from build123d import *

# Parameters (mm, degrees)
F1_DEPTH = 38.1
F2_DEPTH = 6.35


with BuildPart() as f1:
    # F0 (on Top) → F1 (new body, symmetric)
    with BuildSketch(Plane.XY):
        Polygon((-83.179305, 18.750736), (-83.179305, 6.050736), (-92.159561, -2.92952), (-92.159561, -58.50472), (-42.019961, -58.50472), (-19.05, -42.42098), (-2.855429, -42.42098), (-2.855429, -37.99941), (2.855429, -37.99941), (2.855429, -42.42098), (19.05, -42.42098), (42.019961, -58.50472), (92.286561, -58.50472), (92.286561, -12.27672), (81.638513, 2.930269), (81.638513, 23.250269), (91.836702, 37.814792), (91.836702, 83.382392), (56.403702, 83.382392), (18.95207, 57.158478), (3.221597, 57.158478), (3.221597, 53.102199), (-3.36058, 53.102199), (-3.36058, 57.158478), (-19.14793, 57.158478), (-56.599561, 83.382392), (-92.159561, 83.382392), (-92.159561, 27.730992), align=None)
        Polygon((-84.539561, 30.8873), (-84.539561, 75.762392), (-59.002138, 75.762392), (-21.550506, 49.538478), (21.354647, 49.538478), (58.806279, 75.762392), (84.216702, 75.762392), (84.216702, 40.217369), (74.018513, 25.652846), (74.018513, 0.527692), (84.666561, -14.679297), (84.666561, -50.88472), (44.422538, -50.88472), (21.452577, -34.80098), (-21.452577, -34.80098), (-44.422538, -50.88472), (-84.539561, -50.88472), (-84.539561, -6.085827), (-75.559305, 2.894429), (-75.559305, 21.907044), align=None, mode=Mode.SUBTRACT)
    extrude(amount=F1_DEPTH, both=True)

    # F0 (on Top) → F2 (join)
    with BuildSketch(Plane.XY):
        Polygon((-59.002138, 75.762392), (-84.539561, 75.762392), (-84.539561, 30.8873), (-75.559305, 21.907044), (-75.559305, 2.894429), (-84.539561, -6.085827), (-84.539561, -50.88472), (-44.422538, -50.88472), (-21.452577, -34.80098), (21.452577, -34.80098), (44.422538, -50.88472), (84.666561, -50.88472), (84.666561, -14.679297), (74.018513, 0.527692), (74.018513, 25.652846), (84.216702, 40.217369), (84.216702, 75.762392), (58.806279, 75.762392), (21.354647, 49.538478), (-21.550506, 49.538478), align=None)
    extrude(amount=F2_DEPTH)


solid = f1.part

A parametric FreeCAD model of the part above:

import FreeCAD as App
import Part
import Sketcher
Q = App.Units.Quantity


def add_polygon(sketch, points):
    """Adds a closed chain of lines whose ends are joined by coincident constraints."""
    first, n = sketch.GeometryCount, len(points)
    for a, b in zip(points, points[1:] + points[:1]):
        sketch.addGeometry(Part.LineSegment(App.Vector(*a, 0), App.Vector(*b, 0)), False)
    for i in range(n):
        sketch.addConstraint(Sketcher.Constraint("Coincident", first + i, 2, first + (i + 1) % n, 1))

doc = App.newDocument("Part")
params = doc.addObject("Spreadsheet::Sheet", "Params")
for row, (alias, value) in enumerate([
    ("sketch1_width", "1.4 in"),
    ("sketch1_height", "0.5 in"),
    ("sketch1_height2", "0.8 in"),
    ("sketch1_length", "0.5 in"),
    ("sketch1_length2", "0.7 in"),
    ("pad1_length", "3 in"),
    ("sketch2_length", "0.5 in"),
    ("sketch2_length2", "0.7 in"),
    ("sketch2_length3", "1.8 in"),
    ("pad2_length", "0.25 in"),
], start=1):
    params.set(f"A{row}", alias)
    params.set(f"B{row}", "=" + value)
    params.setAlias(f"B{row}", alias)

body = doc.addObject("PartDesign::Body", "Body")

# Sketch on XY plane
sketch1 = body.newObject("Sketcher::SketchObject", "Sketch")
sketch1.AttachmentSupport = (doc.getObject("XY_Plane"), [""])
sketch1.MapMode = "FlatFace"
add_polygon(sketch1, [(-83.2, 18.8), (-83.2, 6.1), (-92.2, -2.9), (-92.2, -58.5), (-42, -58.5), (-19.1, -42.4), (-2.9, -42.4), (-2.9, -38), (2.9, -38), (2.9, -42.4), (19.1, -42.4), (42, -58.5), (92.3, -58.5), (92.3, -12.3), (81.6, 2.9), (81.6, 23.3), (91.8, 37.8), (91.8, 83.4), (56.4, 83.4), (19, 57.2), (3.2, 57.2), (3.2, 53.1), (-3.4, 53.1), (-3.4, 57.2), (-19.1, 57.2), (-56.6, 83.4), (-92.2, 83.4), (-92.2, 27.7)])  # lines 0-27
add_polygon(sketch1, [(-75.6, 21.9), (-84.5, 30.9), (-84.5, 75.8), (-59, 75.8), (-21.6, 49.5), (21.4, 49.5), (58.8, 75.8), (84.2, 75.8), (84.2, 40.2), (74, 25.7), (74, 0.5), (84.7, -14.7), (84.7, -50.9), (44.4, -50.9), (21.5, -34.8), (-21.5, -34.8), (-44.4, -50.9), (-84.5, -50.9), (-84.5, -6.1), (-75.6, 2.9)])  # lines 28-47
sketch1.addConstraint(Sketcher.Constraint("Vertical", 0))
sketch1.addConstraint(Sketcher.Constraint("Vertical", 2))
sketch1.addConstraint(Sketcher.Constraint("Horizontal", 3))
sketch1.addConstraint(Sketcher.Constraint("Horizontal", 5))
sketch1.addConstraint(Sketcher.Constraint("Vertical", 6))
sketch1.addConstraint(Sketcher.Constraint("Horizontal", 7))
sketch1.addConstraint(Sketcher.Constraint("Vertical", 8))
sketch1.addConstraint(Sketcher.Constraint("Horizontal", 9))
sketch1.addConstraint(Sketcher.Constraint("Horizontal", 11))
sketch1.addConstraint(Sketcher.Constraint("Vertical", 12))
sketch1.addConstraint(Sketcher.Constraint("Vertical", 14))
sketch1.addConstraint(Sketcher.Constraint("Vertical", 16))
sketch1.addConstraint(Sketcher.Constraint("Horizontal", 17))
sketch1.addConstraint(Sketcher.Constraint("Horizontal", 19))
sketch1.addConstraint(Sketcher.Constraint("Vertical", 20))
sketch1.addConstraint(Sketcher.Constraint("Horizontal", 21))
sketch1.addConstraint(Sketcher.Constraint("Vertical", 22))
sketch1.addConstraint(Sketcher.Constraint("Horizontal", 23))
sketch1.addConstraint(Sketcher.Constraint("Horizontal", 25))
sketch1.addConstraint(Sketcher.Constraint("Vertical", 26))
sketch1.addConstraint(Sketcher.Constraint("Vertical", 29))
sketch1.addConstraint(Sketcher.Constraint("Horizontal", 30))
sketch1.addConstraint(Sketcher.Constraint("Horizontal", 32))
sketch1.addConstraint(Sketcher.Constraint("Horizontal", 34))
sketch1.addConstraint(Sketcher.Constraint("Vertical", 35))
sketch1.addConstraint(Sketcher.Constraint("Vertical", 37))
sketch1.addConstraint(Sketcher.Constraint("Vertical", 39))
sketch1.addConstraint(Sketcher.Constraint("Horizontal", 40))
sketch1.addConstraint(Sketcher.Constraint("Horizontal", 42))
sketch1.addConstraint(Sketcher.Constraint("Horizontal", 44))
sketch1.addConstraint(Sketcher.Constraint("Vertical", 45))
sketch1.addConstraint(Sketcher.Constraint("Vertical", 47))
sketch1.addConstraint(Sketcher.Constraint("Symmetric", 5, 2, 8, 2, -2))
sketch1.addConstraint(Sketcher.Constraint("Symmetric", 3, 2, 10, 2, -2))
sketch1.addConstraint(Sketcher.Constraint("Symmetric", 40, 2, 43, 2, -2))
sketch1.addConstraint(Sketcher.Constraint("Perpendicular", 4, 13))
sketch1.addConstraint(Sketcher.Constraint("Perpendicular", 10, 15))
sketch1.addConstraint(Sketcher.Constraint("Perpendicular", 13, 18))
sketch1.addConstraint(Sketcher.Constraint("Perpendicular", 15, 24))
sketch1.addConstraint(Sketcher.Constraint("Perpendicular", 1, 27))
sketch1.addConstraint(Sketcher.Constraint("Parallel", 27, 28))
sketch1.addConstraint(Sketcher.Constraint("Parallel", 24, 31))
sketch1.addConstraint(Sketcher.Constraint("Parallel", 18, 33))
sketch1.addConstraint(Sketcher.Constraint("Perpendicular", 31, 36))
sketch1.addConstraint(Sketcher.Constraint("Perpendicular", 33, 38))
sketch1.addConstraint(Sketcher.Constraint("Perpendicular", 36, 41))
sketch1.addConstraint(Sketcher.Constraint("Perpendicular", 38, 43))
sketch1.addConstraint(Sketcher.Constraint("Perpendicular", 28, 46))
sketch1.addConstraint(Sketcher.Constraint("Horizontal", 19, 2, 22, 2))
sketch1.addConstraint(Sketcher.Constraint("Horizontal", 17, 2, 24, 2))
sketch1.addConstraint(Sketcher.Constraint("Horizontal", 30, 2, 33, 2))
sketch1.addConstraint(Sketcher.Constraint("Vertical", 2, 2, 25, 2))
sketch1.addConstraint(Sketcher.Constraint("Vertical", 29, 2, 44, 2))
sketch1.addConstraint(Sketcher.Constraint("Equal", 5, 9))
sketch1.addConstraint(Sketcher.Constraint("Equal", 32, 42))
sketch1.addConstraint(Sketcher.Constraint("Equal", 1, 27))
sketch1.addConstraint(Sketcher.Constraint("Equal", 27, 28))
sketch1.addConstraint(Sketcher.Constraint("Equal", 24, 31))
sketch1.addConstraint(Sketcher.Constraint("Equal", 15, 36))
sketch1.addConstraint(Sketcher.Constraint("Equal", 13, 38))
sketch1.addConstraint(Sketcher.Constraint("Equal", 10, 41))
sketch1.addConstraint(Sketcher.Constraint("DistanceX", 25, 2, 25, 1, Q("1.4 in")))
sketch1.addConstraint(Sketcher.Constraint("DistanceY", 0, 2, 0, 1, Q("0.5 in")))
sketch1.addConstraint(Sketcher.Constraint("DistanceY", 14, 1, 14, 2, Q("0.8 in")))
sketch1.addConstraint(Sketcher.Constraint("Angle", 4, Q("35 deg")))
sketch1.addConstraint(Sketcher.Constraint("Distance", 1, Q("0.5 in")))
sketch1.addConstraint(Sketcher.Constraint("Distance", 15, Q("0.7 in")))
sketch1.addConstraint(Sketcher.Constraint("Distance", 18, Q("1.8 in")))
sketch1.addConstraint(Sketcher.Constraint("DistanceY", 12, 1, 12, 2, Q("1.82 in")))
sketch1.addConstraint(Sketcher.Constraint("DistanceX", 4, 2, 9, 2, Q("1.5 in")))
sketch1.addConstraint(Sketcher.Constraint("DistanceX", 23, 2, 18, 2, Q("1.5 in")))
sketch1.addConstraint(Sketcher.Constraint("DistanceX", 26, 2, 28, 2, Q("0.3 in")))
sketch1.addConstraint(Sketcher.Constraint("DistanceY", 29, 2, 25, 2, Q("0.3 in")))
sketch1.addConstraint(Sketcher.Constraint("DistanceX", 34, 2, 16, 2, Q("0.3 in")))
sketch1.addConstraint(Sketcher.Constraint("DistanceY", 11, 2, 39, 2, Q("0.3 in")))
sketch1.addConstraint(Sketcher.Constraint("DistanceX", 3, 1, 3, 2, Q("1.974 in")))
sketch1.addConstraint(Sketcher.Constraint("DistanceX", 11, 1, 11, 2, Q("1.979 in")))
sketch1.addConstraint(Sketcher.Constraint("DistanceX", 17, 2, 17, 1, Q("1.395 in")))
sketch1.addConstraint(Sketcher.Constraint("DistanceY", 2, 2, 2, 1, Q("2.188 in")))
sketch1.addConstraint(Sketcher.Constraint("DistanceY", 16, 1, 16, 2, Q("1.794 in")))
sketch1.addConstraint(Sketcher.Constraint("DistanceY", 26, 2, 26, 1, Q("2.191 in")))
sketch1.addConstraint(Sketcher.Constraint("DistanceX", 5, 1, 5, 2, Q("16.194571 mm")))
sketch1.addConstraint(Sketcher.Constraint("DistanceX", 23, 2, 23, 1, Q("15.78735 mm")))
sketch1.addConstraint(Sketcher.Constraint("DistanceY", 6, 1, 6, 2, Q("4.42157 mm")))
sketch1.addConstraint(Sketcher.Constraint("DistanceY", 20, 2, 20, 1, Q("4.056279 mm")))
sketch1.addConstraint(Sketcher.Constraint("DistanceY", -1, 1, 20, 2, Q("53.102199 mm")))
sketch1.addConstraint(Sketcher.Constraint("DistanceY", -1, 1, 28, 2, Q("30.8873 mm")))
sketch1.addConstraint(Sketcher.Constraint("DistanceY", 14, 2, 35, 2, Q("16.9671 mm")))
sketch1.addConstraint(Sketcher.Constraint("DistanceX", 19, 2, 19, 1, Q("15.730473 mm")))
sketch1.addConstraint(Sketcher.Constraint("DistanceX", 30, 1, 30, 2, Q("25.537423 mm")))
sketch1.addConstraint(Sketcher.Constraint("DistanceX", 32, 1, 32, 2, Q("42.905153 mm")))
sketch1.addConstraint(Sketcher.Constraint("DistanceY", 37, 2, 37, 1, Q("25.125154 mm")))
sketch1.addConstraint(Sketcher.Constraint("DistanceY", 45, 1, 45, 2, Q("44.798893 mm")))
sketch1.setExpression("Constraints[109]", "Params.sketch1_width")
sketch1.setExpression("Constraints[110]", "Params.sketch1_height")
sketch1.setExpression("Constraints[111]", "Params.sketch1_height2")
sketch1.setExpression("Constraints[113]", "Params.sketch1_length")
sketch1.setExpression("Constraints[114]", "Params.sketch1_length2")
pad1 = body.newObject("PartDesign::Pad", "Pad")
pad1.Profile = sketch1
pad1.setExpression("Length", "Params.pad1_length")
pad1.Midplane = True

# Sketch on XY plane
sketch2 = body.newObject("Sketcher::SketchObject", "Sketch001")
sketch2.AttachmentSupport = (doc.getObject("XY_Plane"), [""])
sketch2.MapMode = "FlatFace"
add_polygon(sketch2, [(-59, 76), (-85, 76), (-85, 31), (-76, 22), (-76, 3), (-85, -6), (-85, -51), (-44, -51), (-21, -35), (21, -35), (44, -51), (85, -51), (85, -15), (74, 1), (74, 26), (84, 40), (84, 76), (59, 76), (21, 50), (-22, 50)])  # lines 0-19
sketch2.addConstraint(Sketcher.Constraint("Horizontal", 0))
sketch2.addConstraint(Sketcher.Constraint("Vertical", 1))
sketch2.addConstraint(Sketcher.Constraint("Vertical", 3))
sketch2.addConstraint(Sketcher.Constraint("Vertical", 5))
sketch2.addConstraint(Sketcher.Constraint("Horizontal", 6))
sketch2.addConstraint(Sketcher.Constraint("Horizontal", 8))
sketch2.addConstraint(Sketcher.Constraint("Horizontal", 10))
sketch2.addConstraint(Sketcher.Constraint("Vertical", 11))
sketch2.addConstraint(Sketcher.Constraint("Vertical", 13))
sketch2.addConstraint(Sketcher.Constraint("Vertical", 15))
sketch2.addConstraint(Sketcher.Constraint("Horizontal", 16))
sketch2.addConstraint(Sketcher.Constraint("Horizontal", 18))
sketch2.addConstraint(Sketcher.Constraint("Symmetric", 6, 2, 9, 2, -2))
sketch2.addConstraint(Sketcher.Constraint("Perpendicular", 2, 4))
sketch2.addConstraint(Sketcher.Constraint("Perpendicular", 7, 12))
sketch2.addConstraint(Sketcher.Constraint("Perpendicular", 9, 14))
sketch2.addConstraint(Sketcher.Constraint("Perpendicular", 12, 17))
sketch2.addConstraint(Sketcher.Constraint("Perpendicular", 14, 19))
sketch2.addConstraint(Sketcher.Constraint("Horizontal", 0, 2, 15, 2))
sketch2.addConstraint(Sketcher.Constraint("Vertical", 1, 2, 4, 2))
sketch2.addConstraint(Sketcher.Constraint("Equal", 8, 18))
sketch2.addConstraint(Sketcher.Constraint("Equal", 2, 4))
sketch2.addConstraint(Sketcher.Constraint("Equal", 7, 9))
sketch2.addConstraint(Sketcher.Constraint("Angle", 7, Q("35 deg")))
sketch2.addConstraint(Sketcher.Constraint("Distance", 2, Q("0.5 in")))
sketch2.addConstraint(Sketcher.Constraint("Distance", 14, Q("0.7 in")))
sketch2.addConstraint(Sketcher.Constraint("Distance", 17, Q("1.8 in")))
sketch2.addConstraint(Sketcher.Constraint("DistanceY", -1, 1, 1, 2, Q("30.8873 mm")))
sketch2.addConstraint(Sketcher.Constraint("DistanceX", -1, 1, 14, 2, Q("84.216702 mm")))
sketch2.addConstraint(Sketcher.Constraint("DistanceX", 5, 2, 9, 2, Q("128.962099 mm")))
sketch2.addConstraint(Sketcher.Constraint("DistanceX", 6, 2, 10, 2, Q("129.089099 mm")))
sketch2.addConstraint(Sketcher.Constraint("DistanceY", 12, 2, 15, 2, Q("75.2347 mm")))
sketch2.addConstraint(Sketcher.Constraint("DistanceX", 2, 2, 18, 2, Q("54.008799 mm")))
sketch2.addConstraint(Sketcher.Constraint("DistanceX", 6, 1, 6, 2, Q("40.117023 mm")))
sketch2.addConstraint(Sketcher.Constraint("DistanceX", 8, 1, 8, 2, Q("42.905154 mm")))
sketch2.addConstraint(Sketcher.Constraint("DistanceY", 1, 2, 1, 1, Q("44.875092 mm")))
sketch2.addConstraint(Sketcher.Constraint("DistanceY", 3, 2, 3, 1, Q("19.012615 mm")))
sketch2.addConstraint(Sketcher.Constraint("DistanceY", 5, 2, 5, 1, Q("44.798893 mm")))
sketch2.addConstraint(Sketcher.Constraint("DistanceY", 13, 1, 13, 2, Q("25.125154 mm")))
sketch2.setExpression("Constraints[44]", "Params.sketch2_length")
sketch2.setExpression("Constraints[45]", "Params.sketch2_length2")
sketch2.setExpression("Constraints[46]", "Params.sketch2_length3")
pad2 = body.newObject("PartDesign::Pad", "Pad001")
pad2.Profile = sketch2
pad2.setExpression("Length", "Params.pad2_length")

doc.recompute()
